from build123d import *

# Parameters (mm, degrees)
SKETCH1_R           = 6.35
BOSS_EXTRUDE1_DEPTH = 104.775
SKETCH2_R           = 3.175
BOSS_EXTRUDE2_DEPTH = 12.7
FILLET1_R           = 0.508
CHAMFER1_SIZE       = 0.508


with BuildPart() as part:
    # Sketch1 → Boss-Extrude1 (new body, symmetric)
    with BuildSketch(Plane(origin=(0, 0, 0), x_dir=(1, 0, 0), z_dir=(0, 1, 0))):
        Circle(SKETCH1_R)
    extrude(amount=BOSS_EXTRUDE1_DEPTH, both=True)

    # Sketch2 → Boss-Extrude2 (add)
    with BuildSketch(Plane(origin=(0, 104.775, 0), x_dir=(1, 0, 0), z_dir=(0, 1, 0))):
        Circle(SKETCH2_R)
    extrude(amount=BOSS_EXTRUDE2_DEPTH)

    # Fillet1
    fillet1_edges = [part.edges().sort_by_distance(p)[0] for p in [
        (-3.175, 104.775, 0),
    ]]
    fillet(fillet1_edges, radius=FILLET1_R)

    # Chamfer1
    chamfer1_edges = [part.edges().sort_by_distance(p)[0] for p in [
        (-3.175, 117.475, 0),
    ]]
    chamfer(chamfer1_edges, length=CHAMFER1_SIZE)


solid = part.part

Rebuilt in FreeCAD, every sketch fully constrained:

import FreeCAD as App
import Part
import Sketcher
from FreeCAD import Vector
Q = App.Units.Quantity


def edges_at(feature, points):
    """Names of the edges that pass closest to the given points."""
    edges = feature.Shape.Edges
    near = lambda p: min(range(len(edges)), key=lambda i: edges[i].distToShape(Part.Vertex(*p))[0])
    return sorted({f"Edge{near(p) + 1}" for p in points})

doc = App.newDocument("Part")
body = doc.addObject("PartDesign::Body", "Body")

# Sketch on XZ plane
sketch1 = body.newObject("Sketcher::SketchObject", "Sketch")
sketch1.AttachmentSupport = (doc.getObject("XZ_Plane"), [""])
sketch1.MapMode = "FlatFace"
sketch1.addGeometry(Part.Circle(Vector(0, 0, 0), Vector(0, 0, 1), 6.35), False)
sketch1.addConstraint(Sketcher.Constraint("Coincident", 0, 3, -1, 1))
sketch1.addConstraint(Sketcher.Constraint("Diameter", 0, Q("0.5 in")))
pad1 = body.newObject("PartDesign::Pad", "Pad")
pad1.Profile = sketch1
pad1.Length = Q("8.25 in")
pad1.Midplane = True

# Sketch on XZ plane
sketch2 = body.newObject("Sketcher::SketchObject", "Sketch001")
sketch2.AttachmentSupport = (doc.getObject("XZ_Plane"), [""])
sketch2.MapMode = "FlatFace"
sketch2.AttachmentOffset = App.Placement(Vector(0, 0, -4.125 * 25.4), App.Rotation())
sketch2.addGeometry(Part.Circle(Vector(0, 0, 0), Vector(0, 0, 1), 3.175), False)
sketch2.addConstraint(Sketcher.Constraint("Coincident", 0, 3, -1, 1))
sketch2.addConstraint(Sketcher.Constraint("Diameter", 0, Q("0.25 in")))
pad2 = body.newObject("PartDesign::Pad", "Pad001")
pad2.Profile = sketch2
pad2.Length = Q("0.5 in")
pad2.Reversed = True
doc.recompute()

fillet = body.newObject("PartDesign::Fillet", "Fillet")
fillet.Base = (pad2, edges_at(pad2, [(-3.175, 104.775, 0)]))
fillet.Radius = Q("0.02 in")
doc.recompute()

chamfer = body.newObject("PartDesign::Chamfer", "Chamfer")
chamfer.Base = (fillet, edges_at(fillet, [(-3.175, 117.475, 0)]))
chamfer.Size = Q("0.02 in")

doc.recompute()
